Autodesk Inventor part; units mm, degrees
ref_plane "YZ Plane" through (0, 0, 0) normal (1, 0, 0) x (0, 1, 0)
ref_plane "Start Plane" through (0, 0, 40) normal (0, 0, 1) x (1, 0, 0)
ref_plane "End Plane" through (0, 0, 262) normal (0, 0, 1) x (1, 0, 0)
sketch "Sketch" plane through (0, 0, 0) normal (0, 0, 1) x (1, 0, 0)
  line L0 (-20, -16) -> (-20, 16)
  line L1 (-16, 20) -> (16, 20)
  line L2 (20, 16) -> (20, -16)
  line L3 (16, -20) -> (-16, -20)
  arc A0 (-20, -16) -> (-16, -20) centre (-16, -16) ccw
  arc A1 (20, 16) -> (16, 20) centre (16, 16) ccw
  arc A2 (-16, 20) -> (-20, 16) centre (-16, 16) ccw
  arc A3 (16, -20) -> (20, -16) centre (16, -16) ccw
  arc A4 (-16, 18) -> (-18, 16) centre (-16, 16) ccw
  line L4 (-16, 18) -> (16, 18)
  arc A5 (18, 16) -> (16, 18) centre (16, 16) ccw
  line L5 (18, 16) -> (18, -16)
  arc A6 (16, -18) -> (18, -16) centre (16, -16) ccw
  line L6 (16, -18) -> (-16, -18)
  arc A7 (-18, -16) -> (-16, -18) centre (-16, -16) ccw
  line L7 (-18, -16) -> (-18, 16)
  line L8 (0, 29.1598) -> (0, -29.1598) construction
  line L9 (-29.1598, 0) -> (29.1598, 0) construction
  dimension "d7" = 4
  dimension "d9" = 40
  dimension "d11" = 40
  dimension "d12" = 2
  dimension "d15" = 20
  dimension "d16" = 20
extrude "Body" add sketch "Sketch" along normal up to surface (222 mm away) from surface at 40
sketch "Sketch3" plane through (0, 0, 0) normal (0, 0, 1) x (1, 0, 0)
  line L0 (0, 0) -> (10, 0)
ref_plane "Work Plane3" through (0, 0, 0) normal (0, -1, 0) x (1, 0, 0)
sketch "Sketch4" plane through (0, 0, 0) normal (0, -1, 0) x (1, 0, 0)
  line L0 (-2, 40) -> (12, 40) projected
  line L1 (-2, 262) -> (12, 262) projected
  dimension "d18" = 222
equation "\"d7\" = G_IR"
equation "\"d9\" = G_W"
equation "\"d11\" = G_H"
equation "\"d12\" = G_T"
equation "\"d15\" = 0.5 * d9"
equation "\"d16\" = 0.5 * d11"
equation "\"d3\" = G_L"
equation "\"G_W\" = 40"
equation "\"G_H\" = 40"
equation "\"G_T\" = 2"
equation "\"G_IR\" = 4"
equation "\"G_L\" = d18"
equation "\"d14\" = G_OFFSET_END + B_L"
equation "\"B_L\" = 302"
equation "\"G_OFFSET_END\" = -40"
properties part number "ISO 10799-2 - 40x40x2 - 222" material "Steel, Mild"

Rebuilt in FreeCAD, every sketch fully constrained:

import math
import FreeCAD as App
import Part
import Sketcher

V = App.Vector
Q = App.Units.Quantity

doc = App.newDocument("Part")
params = doc.addObject("Spreadsheet::Sheet", "Params")
for row, (alias, value) in enumerate([
    ("sketch1_radius", "4 mm"),
    ("sketch1_radius2", "2 mm"),
    ("pad1_length", "222 mm"),
], start=1):
    params.set(f"A{row}", alias)
    params.set(f"B{row}", "=" + value)
    params.setAlias(f"B{row}", alias)

body = doc.addObject("PartDesign::Body", "Body")

# Sketch on XY plane
sketch1 = doc.addObject("Sketcher::SketchObject", "Sketch")
body.addObject(sketch1)
sketch1.AttachmentSupport = (doc.XY_Plane, [""])
sketch1.MapMode = "FlatFace"
sketch1.AttachmentOffset = App.Placement(V(0, 0, 40), App.Rotation())
sketch1.addGeometry([
    Part.LineSegment(V(-20, 16, 0), V(-20, -16, 0)),  # 0
    Part.ArcOfCircle(Part.Circle(V(-16, -16, 0), V(0, 0, 1), 4), math.radians(180), math.radians(270)),  # 1
    Part.LineSegment(V(-16, -20, 0), V(16, -20, 0)),  # 2
    Part.ArcOfCircle(Part.Circle(V(16, -16, 0), V(0, 0, 1), 4), math.radians(-90), math.radians(0)),  # 3
    Part.LineSegment(V(20, -16, 0), V(20, 16, 0)),  # 4
    Part.ArcOfCircle(Part.Circle(V(16, 16, 0), V(0, 0, 1), 4), math.radians(0), math.radians(90)),  # 5
    Part.LineSegment(V(16, 20, 0), V(-16, 20, 0)),  # 6
    Part.ArcOfCircle(Part.Circle(V(-16, 16, 0), V(0, 0, 1), 4), math.radians(90), math.radians(180)),  # 7
    Part.ArcOfCircle(Part.Circle(V(-16, 16, 0), V(0, 0, 1), 2), math.radians(90), math.radians(180)),  # 8
    Part.LineSegment(V(-16, 18, 0), V(16, 18, 0)),  # 9
    Part.ArcOfCircle(Part.Circle(V(16, 16, 0), V(0, 0, 1), 2), math.radians(0), math.radians(90)),  # 10
    Part.LineSegment(V(18, 16, 0), V(18, -16, 0)),  # 11
    Part.ArcOfCircle(Part.Circle(V(16, -16, 0), V(0, 0, 1), 2), math.radians(-90), math.radians(0)),  # 12
    Part.LineSegment(V(16, -18, 0), V(-16, -18, 0)),  # 13
    Part.ArcOfCircle(Part.Circle(V(-16, -16, 0), V(0, 0, 1), 2), math.radians(180), math.radians(270)),  # 14
    Part.LineSegment(V(-18, -16, 0), V(-18, 16, 0)),  # 15
], False)
sketch1.addConstraint([
    Sketcher.Constraint("Tangent", 0, 2, 1, 1),
    Sketcher.Constraint("Tangent", 1, 2, 2, 1),
    Sketcher.Constraint("Tangent", 2, 2, 3, 1),
    Sketcher.Constraint("Tangent", 3, 2, 4, 1),
    Sketcher.Constraint("Tangent", 4, 2, 5, 1),
    Sketcher.Constraint("Tangent", 5, 2, 6, 1),
    Sketcher.Constraint("Tangent", 6, 2, 7, 1),
    Sketcher.Constraint("Tangent", 7, 2, 0, 1),
    Sketcher.Constraint("Tangent", 8, 1, 9, 1),
    Sketcher.Constraint("Tangent", 9, 2, 10, 2),
    Sketcher.Constraint("Tangent", 10, 1, 11, 1),
    Sketcher.Constraint("Tangent", 11, 2, 12, 2),
    Sketcher.Constraint("Tangent", 12, 1, 13, 1),
    Sketcher.Constraint("Tangent", 13, 2, 14, 2),
    Sketcher.Constraint("Tangent", 14, 1, 15, 1),
    Sketcher.Constraint("Tangent", 15, 2, 8, 2),
    Sketcher.Constraint("Vertical", 0),
    Sketcher.Constraint("Horizontal", 2),
    Sketcher.Constraint("Vertical", 4),
    Sketcher.Constraint("Horizontal", 6),
    Sketcher.Constraint("Horizontal", 9),
    Sketcher.Constraint("Vertical", 11),
    Sketcher.Constraint("Horizontal", 13),
    Sketcher.Constraint("Vertical", 15),
    Sketcher.Constraint("Coincident", 8, 3, 7, 3),
    Sketcher.Constraint("Coincident", 10, 3, 5, 3),
    Sketcher.Constraint("Coincident", 12, 3, 3, 3),
    Sketcher.Constraint("Equal", 1, 3),
    Sketcher.Constraint("Equal", 3, 5),
    Sketcher.Constraint("Equal", 5, 7),
    Sketcher.Constraint("Equal", 12, 14),
    Sketcher.Constraint("Symmetric", 1, 3, 5, 3, -1, 1),
    Sketcher.Constraint("Equal", 13, 0),
    Sketcher.Constraint("Radius", 1, Q("4 mm")),
    Sketcher.Constraint("Radius", 8, Q("2 mm")),
    Sketcher.Constraint("DistanceX", 0, 2, -1, 1, Q("20 mm")),
])
sketch1.setExpression("Constraints[33]", "Params.sketch1_radius")
sketch1.setExpression("Constraints[34]", "Params.sketch1_radius2")
pad1 = doc.addObject("PartDesign::Pad", "Pad")
body.addObject(pad1)
pad1.Profile = sketch1
pad1.setExpression("Length", "Params.pad1_length")

doc.recompute()
